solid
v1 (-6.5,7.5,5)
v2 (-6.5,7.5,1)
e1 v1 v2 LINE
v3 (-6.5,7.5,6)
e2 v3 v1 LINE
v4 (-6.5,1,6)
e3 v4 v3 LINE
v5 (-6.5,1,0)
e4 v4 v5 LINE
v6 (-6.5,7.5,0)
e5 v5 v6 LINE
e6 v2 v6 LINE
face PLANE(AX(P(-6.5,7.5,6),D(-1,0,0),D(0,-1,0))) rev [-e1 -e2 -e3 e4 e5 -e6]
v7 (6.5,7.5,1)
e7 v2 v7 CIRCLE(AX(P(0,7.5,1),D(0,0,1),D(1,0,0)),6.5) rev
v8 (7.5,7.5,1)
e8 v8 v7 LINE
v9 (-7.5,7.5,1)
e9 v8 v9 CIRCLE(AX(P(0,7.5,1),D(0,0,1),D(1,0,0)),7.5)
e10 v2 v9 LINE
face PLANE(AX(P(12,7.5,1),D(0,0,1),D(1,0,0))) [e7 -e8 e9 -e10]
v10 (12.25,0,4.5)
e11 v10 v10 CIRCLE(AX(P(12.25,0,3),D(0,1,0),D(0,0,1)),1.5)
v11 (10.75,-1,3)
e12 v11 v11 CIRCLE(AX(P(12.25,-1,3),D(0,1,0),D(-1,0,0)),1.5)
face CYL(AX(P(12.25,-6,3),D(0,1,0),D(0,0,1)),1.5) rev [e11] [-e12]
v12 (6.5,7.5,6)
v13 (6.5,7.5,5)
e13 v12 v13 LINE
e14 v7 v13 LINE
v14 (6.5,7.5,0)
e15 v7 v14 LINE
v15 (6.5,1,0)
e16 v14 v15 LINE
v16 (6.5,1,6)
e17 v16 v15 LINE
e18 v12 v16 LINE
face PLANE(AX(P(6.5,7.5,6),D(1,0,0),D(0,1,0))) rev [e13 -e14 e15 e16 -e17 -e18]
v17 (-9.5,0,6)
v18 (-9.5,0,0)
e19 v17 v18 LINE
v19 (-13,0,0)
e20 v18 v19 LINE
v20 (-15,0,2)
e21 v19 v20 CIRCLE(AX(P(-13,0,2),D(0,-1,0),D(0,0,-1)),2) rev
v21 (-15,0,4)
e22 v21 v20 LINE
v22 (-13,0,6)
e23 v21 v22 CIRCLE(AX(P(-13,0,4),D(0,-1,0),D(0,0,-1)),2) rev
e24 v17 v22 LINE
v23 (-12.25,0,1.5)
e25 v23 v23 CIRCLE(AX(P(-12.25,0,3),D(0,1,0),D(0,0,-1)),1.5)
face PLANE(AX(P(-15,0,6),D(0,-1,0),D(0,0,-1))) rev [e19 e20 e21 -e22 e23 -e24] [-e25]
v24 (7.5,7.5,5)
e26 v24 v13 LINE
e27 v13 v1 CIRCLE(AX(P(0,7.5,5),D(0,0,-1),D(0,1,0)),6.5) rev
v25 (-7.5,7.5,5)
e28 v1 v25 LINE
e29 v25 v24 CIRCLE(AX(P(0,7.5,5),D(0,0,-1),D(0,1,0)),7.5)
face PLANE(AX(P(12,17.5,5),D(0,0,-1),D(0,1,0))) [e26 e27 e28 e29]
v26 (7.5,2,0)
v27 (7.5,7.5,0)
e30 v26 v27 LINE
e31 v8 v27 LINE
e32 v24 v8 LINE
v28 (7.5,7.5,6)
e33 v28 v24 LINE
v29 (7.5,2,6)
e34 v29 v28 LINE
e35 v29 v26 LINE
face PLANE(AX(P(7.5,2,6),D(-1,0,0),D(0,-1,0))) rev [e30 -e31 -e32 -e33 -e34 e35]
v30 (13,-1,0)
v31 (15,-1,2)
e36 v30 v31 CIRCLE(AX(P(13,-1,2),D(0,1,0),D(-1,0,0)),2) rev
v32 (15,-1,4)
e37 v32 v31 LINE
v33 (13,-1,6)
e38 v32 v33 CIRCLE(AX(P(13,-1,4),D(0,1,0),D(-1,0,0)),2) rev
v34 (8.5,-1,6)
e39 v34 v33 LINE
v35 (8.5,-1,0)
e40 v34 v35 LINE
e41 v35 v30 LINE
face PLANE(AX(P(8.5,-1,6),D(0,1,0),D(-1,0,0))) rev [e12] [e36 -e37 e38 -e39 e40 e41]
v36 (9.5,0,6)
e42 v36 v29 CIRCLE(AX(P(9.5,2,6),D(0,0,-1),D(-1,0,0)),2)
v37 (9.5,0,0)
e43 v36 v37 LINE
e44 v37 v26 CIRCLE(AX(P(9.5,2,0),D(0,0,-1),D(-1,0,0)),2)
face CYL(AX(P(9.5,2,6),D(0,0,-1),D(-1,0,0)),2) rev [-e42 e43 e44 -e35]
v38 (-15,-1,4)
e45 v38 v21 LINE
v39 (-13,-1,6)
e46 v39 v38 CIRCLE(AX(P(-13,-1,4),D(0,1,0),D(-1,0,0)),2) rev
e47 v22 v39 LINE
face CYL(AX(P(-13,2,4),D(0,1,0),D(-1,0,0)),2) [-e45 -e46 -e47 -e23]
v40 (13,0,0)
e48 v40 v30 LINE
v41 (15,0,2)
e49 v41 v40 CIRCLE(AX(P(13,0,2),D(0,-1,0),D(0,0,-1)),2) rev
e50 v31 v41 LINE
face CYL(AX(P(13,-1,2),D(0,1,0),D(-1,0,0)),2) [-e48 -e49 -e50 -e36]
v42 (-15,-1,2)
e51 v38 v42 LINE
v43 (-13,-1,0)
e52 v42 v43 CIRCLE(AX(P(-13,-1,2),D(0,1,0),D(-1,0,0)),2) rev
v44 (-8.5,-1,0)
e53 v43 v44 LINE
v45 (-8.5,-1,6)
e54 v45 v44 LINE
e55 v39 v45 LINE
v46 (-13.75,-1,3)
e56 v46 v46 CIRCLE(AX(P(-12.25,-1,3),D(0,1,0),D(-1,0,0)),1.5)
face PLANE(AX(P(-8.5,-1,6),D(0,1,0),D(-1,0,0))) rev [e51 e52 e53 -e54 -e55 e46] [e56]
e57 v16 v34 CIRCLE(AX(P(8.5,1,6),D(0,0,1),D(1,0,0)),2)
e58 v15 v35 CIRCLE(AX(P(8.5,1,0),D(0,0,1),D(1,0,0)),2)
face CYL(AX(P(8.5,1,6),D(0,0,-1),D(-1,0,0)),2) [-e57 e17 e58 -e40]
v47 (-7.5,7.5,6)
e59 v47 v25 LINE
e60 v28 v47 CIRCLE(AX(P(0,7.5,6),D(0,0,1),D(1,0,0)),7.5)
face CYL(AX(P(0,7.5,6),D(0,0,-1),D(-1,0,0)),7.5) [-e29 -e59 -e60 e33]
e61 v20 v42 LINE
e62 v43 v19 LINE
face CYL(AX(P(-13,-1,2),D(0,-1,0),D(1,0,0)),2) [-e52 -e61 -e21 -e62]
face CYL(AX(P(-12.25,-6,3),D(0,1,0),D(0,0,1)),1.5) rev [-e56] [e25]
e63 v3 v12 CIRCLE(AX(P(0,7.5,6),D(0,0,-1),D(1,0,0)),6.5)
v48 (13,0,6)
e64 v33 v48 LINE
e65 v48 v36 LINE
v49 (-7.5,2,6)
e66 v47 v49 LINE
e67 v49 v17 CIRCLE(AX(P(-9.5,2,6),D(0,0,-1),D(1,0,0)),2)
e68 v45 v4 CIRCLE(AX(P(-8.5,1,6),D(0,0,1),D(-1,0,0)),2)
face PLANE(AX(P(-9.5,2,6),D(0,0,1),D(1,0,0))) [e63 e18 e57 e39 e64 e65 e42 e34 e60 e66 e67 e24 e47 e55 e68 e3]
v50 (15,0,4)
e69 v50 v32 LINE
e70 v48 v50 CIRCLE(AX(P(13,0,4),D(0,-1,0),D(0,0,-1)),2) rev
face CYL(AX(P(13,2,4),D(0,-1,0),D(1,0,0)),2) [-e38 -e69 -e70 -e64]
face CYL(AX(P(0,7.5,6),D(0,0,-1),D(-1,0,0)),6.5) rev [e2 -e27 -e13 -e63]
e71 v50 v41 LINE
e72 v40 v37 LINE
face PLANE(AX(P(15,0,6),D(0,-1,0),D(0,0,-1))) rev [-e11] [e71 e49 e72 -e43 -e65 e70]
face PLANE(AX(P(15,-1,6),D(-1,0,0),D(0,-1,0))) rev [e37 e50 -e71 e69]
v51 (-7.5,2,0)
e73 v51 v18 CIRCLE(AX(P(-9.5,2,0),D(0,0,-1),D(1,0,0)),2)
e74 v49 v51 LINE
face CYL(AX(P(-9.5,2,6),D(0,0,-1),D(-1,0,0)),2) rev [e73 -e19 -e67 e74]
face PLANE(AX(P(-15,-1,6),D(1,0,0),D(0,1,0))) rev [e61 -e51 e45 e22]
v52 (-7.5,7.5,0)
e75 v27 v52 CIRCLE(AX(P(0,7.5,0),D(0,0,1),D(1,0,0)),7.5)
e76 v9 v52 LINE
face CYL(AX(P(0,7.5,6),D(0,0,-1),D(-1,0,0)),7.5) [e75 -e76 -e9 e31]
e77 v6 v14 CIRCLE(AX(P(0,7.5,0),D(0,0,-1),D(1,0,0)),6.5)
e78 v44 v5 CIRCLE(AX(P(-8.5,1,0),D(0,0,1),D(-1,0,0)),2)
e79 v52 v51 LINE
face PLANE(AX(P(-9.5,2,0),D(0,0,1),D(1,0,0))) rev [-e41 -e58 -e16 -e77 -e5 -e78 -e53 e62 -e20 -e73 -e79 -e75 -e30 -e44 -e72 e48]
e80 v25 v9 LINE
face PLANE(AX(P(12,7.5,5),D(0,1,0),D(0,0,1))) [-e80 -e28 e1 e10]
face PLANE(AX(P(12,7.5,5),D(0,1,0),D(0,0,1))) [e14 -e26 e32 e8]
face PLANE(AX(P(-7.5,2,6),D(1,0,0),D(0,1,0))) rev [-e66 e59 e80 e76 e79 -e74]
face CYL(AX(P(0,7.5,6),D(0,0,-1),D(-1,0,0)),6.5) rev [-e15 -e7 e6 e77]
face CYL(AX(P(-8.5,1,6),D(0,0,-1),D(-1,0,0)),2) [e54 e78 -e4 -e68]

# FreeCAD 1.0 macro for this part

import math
import FreeCAD as App
import Part
import Sketcher
Q = App.Units.Quantity


def edges_at(feature, points):
    """Names of the edges that pass closest to the given points."""
    edges = feature.Shape.Edges
    near = lambda p: min(range(len(edges)), key=lambda i: edges[i].distToShape(Part.Vertex(*p))[0])
    return sorted({f"Edge{near(p) + 1}" for p in points})

doc = App.newDocument("Part")
body = doc.addObject("PartDesign::Body", "Body")

sketch1 = doc.addObject("Sketcher::SketchObject", "Sketch")
body.addObject(sketch1)
sketch1.AttachmentSupport = (doc.XY_Plane, [""])
sketch1.MapMode = "FlatFace"
sketch1.addGeometry(Part.LineSegment(App.Vector(-9.5, 0, 0), App.Vector(-15, 0, 0)), False)
sketch1.addGeometry(Part.LineSegment(App.Vector(-15, 0, 0), App.Vector(-15, -1, 0)), False)
sketch1.addGeometry(Part.LineSegment(App.Vector(-15, -1, 0), App.Vector(-8.5, -1, 0)), False)
sketch1.addGeometry(Part.ArcOfCircle(Part.Circle(App.Vector(-8.5, 1, 0), App.Vector(0, 0, 1), 2), math.radians(-90), math.radians(0)), False)
sketch1.addGeometry(Part.LineSegment(App.Vector(-6.5, 1, 0), App.Vector(-6.5, 7.5, 0)), False)
sketch1.addGeometry(Part.ArcOfCircle(Part.Circle(App.Vector(0, 7.5, 0), App.Vector(0, 0, 1), 6.5), math.radians(0), math.radians(180)), False)
sketch1.addGeometry(Part.LineSegment(App.Vector(6.5, 7.5, 0), App.Vector(6.5, 1, 0)), False)
sketch1.addGeometry(Part.ArcOfCircle(Part.Circle(App.Vector(8.5, 1, 0), App.Vector(0, 0, 1), 2), math.radians(-180), math.radians(-90)), False)
sketch1.addGeometry(Part.LineSegment(App.Vector(8.5, -1, 0), App.Vector(15, -1, 0)), False)
sketch1.addGeometry(Part.LineSegment(App.Vector(15, -1, 0), App.Vector(15, 0, 0)), False)
sketch1.addGeometry(Part.LineSegment(App.Vector(15, 0, 0), App.Vector(9.5, 0, 0)), False)
sketch1.addGeometry(Part.ArcOfCircle(Part.Circle(App.Vector(9.5, 2, 0), App.Vector(0, 0, 1), 2), math.radians(-180), math.radians(-90)), False)
sketch1.addGeometry(Part.LineSegment(App.Vector(7.5, 2, 0), App.Vector(7.5, 7.5, 0)), False)
sketch1.addGeometry(Part.ArcOfCircle(Part.Circle(App.Vector(0, 7.5, 0), App.Vector(0, 0, 1), 7.5), math.radians(0), math.radians(180)), False)
sketch1.addGeometry(Part.LineSegment(App.Vector(-7.5, 7.5, 0), App.Vector(-7.5, 2, 0)), False)
sketch1.addGeometry(Part.ArcOfCircle(Part.Circle(App.Vector(-9.5, 2, 0), App.Vector(0, 0, 1), 2), math.radians(-90), math.radians(0)), False)
sketch1.addConstraint(Sketcher.Constraint("Coincident", 0, 2, 1, 1))
sketch1.addConstraint(Sketcher.Constraint("Coincident", 1, 2, 2, 1))
sketch1.addConstraint(Sketcher.Constraint("Tangent", 2, 2, 3, 1))
sketch1.addConstraint(Sketcher.Constraint("Tangent", 3, 2, 4, 1))
sketch1.addConstraint(Sketcher.Constraint("Tangent", 4, 2, 5, 2))
sketch1.addConstraint(Sketcher.Constraint("Tangent", 5, 1, 6, 1))
sketch1.addConstraint(Sketcher.Constraint("Tangent", 6, 2, 7, 1))
sketch1.addConstraint(Sketcher.Constraint("Tangent", 7, 2, 8, 1))
sketch1.addConstraint(Sketcher.Constraint("Coincident", 8, 2, 9, 1))
sketch1.addConstraint(Sketcher.Constraint("Coincident", 9, 2, 10, 1))
sketch1.addConstraint(Sketcher.Constraint("Tangent", 10, 2, 11, 2))
sketch1.addConstraint(Sketcher.Constraint("Tangent", 11, 1, 12, 1))
sketch1.addConstraint(Sketcher.Constraint("Tangent", 12, 2, 13, 1))
sketch1.addConstraint(Sketcher.Constraint("Tangent", 13, 2, 14, 1))
sketch1.addConstraint(Sketcher.Constraint("Tangent", 14, 2, 15, 2))
sketch1.addConstraint(Sketcher.Constraint("Tangent", 15, 1, 0, 1))
sketch1.addConstraint(Sketcher.Constraint("Horizontal", 0))
sketch1.addConstraint(Sketcher.Constraint("Vertical", 1))
sketch1.addConstraint(Sketcher.Constraint("Horizontal", 2))
sketch1.addConstraint(Sketcher.Constraint("Vertical", 4))
sketch1.addConstraint(Sketcher.Constraint("Vertical", 6))
sketch1.addConstraint(Sketcher.Constraint("Horizontal", 8))
sketch1.addConstraint(Sketcher.Constraint("Vertical", 9))
sketch1.addConstraint(Sketcher.Constraint("Horizontal", 10))
sketch1.addConstraint(Sketcher.Constraint("Vertical", 12))
sketch1.addConstraint(Sketcher.Constraint("Vertical", 14))
sketch1.addConstraint(Sketcher.Constraint("Coincident", 13, 3, 5, 3))
sketch1.addConstraint(Sketcher.Constraint("Equal", 3, 7))
sketch1.addConstraint(Sketcher.Constraint("Equal", 7, 11))
sketch1.addConstraint(Sketcher.Constraint("Equal", 11, 15))
sketch1.addConstraint(Sketcher.Constraint("Symmetric", 0, 2, 9, 2, -1, 1))
sketch1.addConstraint(Sketcher.Constraint("Symmetric", 3, 3, 7, 3, -2))
sketch1.addConstraint(Sketcher.Constraint("PointOnObject", 0, 2, -1))
sketch1.addConstraint(Sketcher.Constraint("Equal", 8, 4))
sketch1.addConstraint(Sketcher.Constraint("Equal", 10, 12))
sketch1.addConstraint(Sketcher.Constraint("Radius", 3, Q("2 mm")))
sketch1.addConstraint(Sketcher.Constraint("Radius", 5, Q("6.5 mm")))
sketch1.addConstraint(Sketcher.Constraint("Radius", 13, Q("7.5 mm")))
sketch1.addConstraint(Sketcher.Constraint("DistanceX", 0, 2, 0, 1, Q("5.5 mm")))
pad1 = doc.addObject("PartDesign::Pad", "Pad")
body.addObject(pad1)
pad1.Profile = sketch1
pad1.Length = 6

sketch2 = doc.addObject("Sketcher::SketchObject", "Sketch001")
body.addObject(sketch2)
sketch2.AttachmentSupport = (doc.XZ_Plane, [""])
sketch2.MapMode = "FlatFace"
sketch2.addGeometry(Part.Circle(App.Vector(12.2, 3, 0), App.Vector(0, 0, 1), 1.5), False)
sketch2.addGeometry(Part.Circle(App.Vector(-12.2, 3, 0), App.Vector(0, 0, 1), 1.5), False)
sketch2.addConstraint(Sketcher.Constraint("Equal", 0, 1))
sketch2.addConstraint(Sketcher.Constraint("Symmetric", 0, 3, 1, 3, -2))
sketch2.addConstraint(Sketcher.Constraint("Diameter", 0, Q("3 mm")))
sketch2.addConstraint(Sketcher.Constraint("DistanceY", -1, 1, 0, 3, Q("3 mm")))
sketch2.addConstraint(Sketcher.Constraint("DistanceX", 1, 3, 0, 3, Q("24.5 mm")))
pocket1 = doc.addObject("PartDesign::Pocket", "Pocket")
body.addObject(pocket1)
pocket1.Profile = sketch2
pocket1.Length = 6
pocket1.Reversed = True

sketch3 = doc.addObject("Sketcher::SketchObject", "Sketch002")
body.addObject(sketch3)
sketch3.AttachmentSupport = (doc.YZ_Plane, [""])
sketch3.MapMode = "FlatFace"
sketch3.addGeometry(Part.LineSegment(App.Vector(17.5, 5, 0), App.Vector(7.5, 5, 0)), False)
sketch3.addGeometry(Part.LineSegment(App.Vector(7.5, 5, 0), App.Vector(7.5, 1, 0)), False)
sketch3.addGeometry(Part.LineSegment(App.Vector(7.5, 1, 0), App.Vector(17.5, 1, 0)), False)
sketch3.addGeometry(Part.LineSegment(App.Vector(17.5, 1, 0), App.Vector(17.5, 5, 0)), False)
sketch3.addConstraint(Sketcher.Constraint("Coincident", 0, 2, 1, 1))
sketch3.addConstraint(Sketcher.Constraint("Coincident", 1, 2, 2, 1))
sketch3.addConstraint(Sketcher.Constraint("Coincident", 2, 2, 3, 1))
sketch3.addConstraint(Sketcher.Constraint("Coincident", 3, 2, 0, 1))
sketch3.addConstraint(Sketcher.Constraint("Horizontal", 0))
sketch3.addConstraint(Sketcher.Constraint("Vertical", 1))
sketch3.addConstraint(Sketcher.Constraint("Horizontal", 2))
sketch3.addConstraint(Sketcher.Constraint("Vertical", 3))
sketch3.addConstraint(Sketcher.Constraint("DistanceX", 0, 2, 0, 1, Q("10 mm")))
sketch3.addConstraint(Sketcher.Constraint("DistanceY", 1, 2, 1, 1, Q("4 mm")))
sketch3.addConstraint(Sketcher.Constraint("DistanceY", -1, 1, 0, 2, Q("5 mm")))
sketch3.addConstraint(Sketcher.Constraint("DistanceX", -1, 1, 0, 2, Q("7.5 mm")))
pocket2 = doc.addObject("PartDesign::Pocket", "Pocket001")
body.addObject(pocket2)
pocket2.Profile = sketch3
pocket2.Type = "ThroughAll"
pocket2.Midplane = True
doc.recompute()

fillet = doc.addObject("PartDesign::Fillet", "Fillet")
body.addObject(fillet)
fillet.Base = (pocket2, edges_at(pocket2, [
    (15, -0.5, 0),
    (-15, -0.5, 0),
    (15, -0.5, 6),
    (-15, -0.5, 6),
]))
fillet.Radius = 2

doc.recompute()
